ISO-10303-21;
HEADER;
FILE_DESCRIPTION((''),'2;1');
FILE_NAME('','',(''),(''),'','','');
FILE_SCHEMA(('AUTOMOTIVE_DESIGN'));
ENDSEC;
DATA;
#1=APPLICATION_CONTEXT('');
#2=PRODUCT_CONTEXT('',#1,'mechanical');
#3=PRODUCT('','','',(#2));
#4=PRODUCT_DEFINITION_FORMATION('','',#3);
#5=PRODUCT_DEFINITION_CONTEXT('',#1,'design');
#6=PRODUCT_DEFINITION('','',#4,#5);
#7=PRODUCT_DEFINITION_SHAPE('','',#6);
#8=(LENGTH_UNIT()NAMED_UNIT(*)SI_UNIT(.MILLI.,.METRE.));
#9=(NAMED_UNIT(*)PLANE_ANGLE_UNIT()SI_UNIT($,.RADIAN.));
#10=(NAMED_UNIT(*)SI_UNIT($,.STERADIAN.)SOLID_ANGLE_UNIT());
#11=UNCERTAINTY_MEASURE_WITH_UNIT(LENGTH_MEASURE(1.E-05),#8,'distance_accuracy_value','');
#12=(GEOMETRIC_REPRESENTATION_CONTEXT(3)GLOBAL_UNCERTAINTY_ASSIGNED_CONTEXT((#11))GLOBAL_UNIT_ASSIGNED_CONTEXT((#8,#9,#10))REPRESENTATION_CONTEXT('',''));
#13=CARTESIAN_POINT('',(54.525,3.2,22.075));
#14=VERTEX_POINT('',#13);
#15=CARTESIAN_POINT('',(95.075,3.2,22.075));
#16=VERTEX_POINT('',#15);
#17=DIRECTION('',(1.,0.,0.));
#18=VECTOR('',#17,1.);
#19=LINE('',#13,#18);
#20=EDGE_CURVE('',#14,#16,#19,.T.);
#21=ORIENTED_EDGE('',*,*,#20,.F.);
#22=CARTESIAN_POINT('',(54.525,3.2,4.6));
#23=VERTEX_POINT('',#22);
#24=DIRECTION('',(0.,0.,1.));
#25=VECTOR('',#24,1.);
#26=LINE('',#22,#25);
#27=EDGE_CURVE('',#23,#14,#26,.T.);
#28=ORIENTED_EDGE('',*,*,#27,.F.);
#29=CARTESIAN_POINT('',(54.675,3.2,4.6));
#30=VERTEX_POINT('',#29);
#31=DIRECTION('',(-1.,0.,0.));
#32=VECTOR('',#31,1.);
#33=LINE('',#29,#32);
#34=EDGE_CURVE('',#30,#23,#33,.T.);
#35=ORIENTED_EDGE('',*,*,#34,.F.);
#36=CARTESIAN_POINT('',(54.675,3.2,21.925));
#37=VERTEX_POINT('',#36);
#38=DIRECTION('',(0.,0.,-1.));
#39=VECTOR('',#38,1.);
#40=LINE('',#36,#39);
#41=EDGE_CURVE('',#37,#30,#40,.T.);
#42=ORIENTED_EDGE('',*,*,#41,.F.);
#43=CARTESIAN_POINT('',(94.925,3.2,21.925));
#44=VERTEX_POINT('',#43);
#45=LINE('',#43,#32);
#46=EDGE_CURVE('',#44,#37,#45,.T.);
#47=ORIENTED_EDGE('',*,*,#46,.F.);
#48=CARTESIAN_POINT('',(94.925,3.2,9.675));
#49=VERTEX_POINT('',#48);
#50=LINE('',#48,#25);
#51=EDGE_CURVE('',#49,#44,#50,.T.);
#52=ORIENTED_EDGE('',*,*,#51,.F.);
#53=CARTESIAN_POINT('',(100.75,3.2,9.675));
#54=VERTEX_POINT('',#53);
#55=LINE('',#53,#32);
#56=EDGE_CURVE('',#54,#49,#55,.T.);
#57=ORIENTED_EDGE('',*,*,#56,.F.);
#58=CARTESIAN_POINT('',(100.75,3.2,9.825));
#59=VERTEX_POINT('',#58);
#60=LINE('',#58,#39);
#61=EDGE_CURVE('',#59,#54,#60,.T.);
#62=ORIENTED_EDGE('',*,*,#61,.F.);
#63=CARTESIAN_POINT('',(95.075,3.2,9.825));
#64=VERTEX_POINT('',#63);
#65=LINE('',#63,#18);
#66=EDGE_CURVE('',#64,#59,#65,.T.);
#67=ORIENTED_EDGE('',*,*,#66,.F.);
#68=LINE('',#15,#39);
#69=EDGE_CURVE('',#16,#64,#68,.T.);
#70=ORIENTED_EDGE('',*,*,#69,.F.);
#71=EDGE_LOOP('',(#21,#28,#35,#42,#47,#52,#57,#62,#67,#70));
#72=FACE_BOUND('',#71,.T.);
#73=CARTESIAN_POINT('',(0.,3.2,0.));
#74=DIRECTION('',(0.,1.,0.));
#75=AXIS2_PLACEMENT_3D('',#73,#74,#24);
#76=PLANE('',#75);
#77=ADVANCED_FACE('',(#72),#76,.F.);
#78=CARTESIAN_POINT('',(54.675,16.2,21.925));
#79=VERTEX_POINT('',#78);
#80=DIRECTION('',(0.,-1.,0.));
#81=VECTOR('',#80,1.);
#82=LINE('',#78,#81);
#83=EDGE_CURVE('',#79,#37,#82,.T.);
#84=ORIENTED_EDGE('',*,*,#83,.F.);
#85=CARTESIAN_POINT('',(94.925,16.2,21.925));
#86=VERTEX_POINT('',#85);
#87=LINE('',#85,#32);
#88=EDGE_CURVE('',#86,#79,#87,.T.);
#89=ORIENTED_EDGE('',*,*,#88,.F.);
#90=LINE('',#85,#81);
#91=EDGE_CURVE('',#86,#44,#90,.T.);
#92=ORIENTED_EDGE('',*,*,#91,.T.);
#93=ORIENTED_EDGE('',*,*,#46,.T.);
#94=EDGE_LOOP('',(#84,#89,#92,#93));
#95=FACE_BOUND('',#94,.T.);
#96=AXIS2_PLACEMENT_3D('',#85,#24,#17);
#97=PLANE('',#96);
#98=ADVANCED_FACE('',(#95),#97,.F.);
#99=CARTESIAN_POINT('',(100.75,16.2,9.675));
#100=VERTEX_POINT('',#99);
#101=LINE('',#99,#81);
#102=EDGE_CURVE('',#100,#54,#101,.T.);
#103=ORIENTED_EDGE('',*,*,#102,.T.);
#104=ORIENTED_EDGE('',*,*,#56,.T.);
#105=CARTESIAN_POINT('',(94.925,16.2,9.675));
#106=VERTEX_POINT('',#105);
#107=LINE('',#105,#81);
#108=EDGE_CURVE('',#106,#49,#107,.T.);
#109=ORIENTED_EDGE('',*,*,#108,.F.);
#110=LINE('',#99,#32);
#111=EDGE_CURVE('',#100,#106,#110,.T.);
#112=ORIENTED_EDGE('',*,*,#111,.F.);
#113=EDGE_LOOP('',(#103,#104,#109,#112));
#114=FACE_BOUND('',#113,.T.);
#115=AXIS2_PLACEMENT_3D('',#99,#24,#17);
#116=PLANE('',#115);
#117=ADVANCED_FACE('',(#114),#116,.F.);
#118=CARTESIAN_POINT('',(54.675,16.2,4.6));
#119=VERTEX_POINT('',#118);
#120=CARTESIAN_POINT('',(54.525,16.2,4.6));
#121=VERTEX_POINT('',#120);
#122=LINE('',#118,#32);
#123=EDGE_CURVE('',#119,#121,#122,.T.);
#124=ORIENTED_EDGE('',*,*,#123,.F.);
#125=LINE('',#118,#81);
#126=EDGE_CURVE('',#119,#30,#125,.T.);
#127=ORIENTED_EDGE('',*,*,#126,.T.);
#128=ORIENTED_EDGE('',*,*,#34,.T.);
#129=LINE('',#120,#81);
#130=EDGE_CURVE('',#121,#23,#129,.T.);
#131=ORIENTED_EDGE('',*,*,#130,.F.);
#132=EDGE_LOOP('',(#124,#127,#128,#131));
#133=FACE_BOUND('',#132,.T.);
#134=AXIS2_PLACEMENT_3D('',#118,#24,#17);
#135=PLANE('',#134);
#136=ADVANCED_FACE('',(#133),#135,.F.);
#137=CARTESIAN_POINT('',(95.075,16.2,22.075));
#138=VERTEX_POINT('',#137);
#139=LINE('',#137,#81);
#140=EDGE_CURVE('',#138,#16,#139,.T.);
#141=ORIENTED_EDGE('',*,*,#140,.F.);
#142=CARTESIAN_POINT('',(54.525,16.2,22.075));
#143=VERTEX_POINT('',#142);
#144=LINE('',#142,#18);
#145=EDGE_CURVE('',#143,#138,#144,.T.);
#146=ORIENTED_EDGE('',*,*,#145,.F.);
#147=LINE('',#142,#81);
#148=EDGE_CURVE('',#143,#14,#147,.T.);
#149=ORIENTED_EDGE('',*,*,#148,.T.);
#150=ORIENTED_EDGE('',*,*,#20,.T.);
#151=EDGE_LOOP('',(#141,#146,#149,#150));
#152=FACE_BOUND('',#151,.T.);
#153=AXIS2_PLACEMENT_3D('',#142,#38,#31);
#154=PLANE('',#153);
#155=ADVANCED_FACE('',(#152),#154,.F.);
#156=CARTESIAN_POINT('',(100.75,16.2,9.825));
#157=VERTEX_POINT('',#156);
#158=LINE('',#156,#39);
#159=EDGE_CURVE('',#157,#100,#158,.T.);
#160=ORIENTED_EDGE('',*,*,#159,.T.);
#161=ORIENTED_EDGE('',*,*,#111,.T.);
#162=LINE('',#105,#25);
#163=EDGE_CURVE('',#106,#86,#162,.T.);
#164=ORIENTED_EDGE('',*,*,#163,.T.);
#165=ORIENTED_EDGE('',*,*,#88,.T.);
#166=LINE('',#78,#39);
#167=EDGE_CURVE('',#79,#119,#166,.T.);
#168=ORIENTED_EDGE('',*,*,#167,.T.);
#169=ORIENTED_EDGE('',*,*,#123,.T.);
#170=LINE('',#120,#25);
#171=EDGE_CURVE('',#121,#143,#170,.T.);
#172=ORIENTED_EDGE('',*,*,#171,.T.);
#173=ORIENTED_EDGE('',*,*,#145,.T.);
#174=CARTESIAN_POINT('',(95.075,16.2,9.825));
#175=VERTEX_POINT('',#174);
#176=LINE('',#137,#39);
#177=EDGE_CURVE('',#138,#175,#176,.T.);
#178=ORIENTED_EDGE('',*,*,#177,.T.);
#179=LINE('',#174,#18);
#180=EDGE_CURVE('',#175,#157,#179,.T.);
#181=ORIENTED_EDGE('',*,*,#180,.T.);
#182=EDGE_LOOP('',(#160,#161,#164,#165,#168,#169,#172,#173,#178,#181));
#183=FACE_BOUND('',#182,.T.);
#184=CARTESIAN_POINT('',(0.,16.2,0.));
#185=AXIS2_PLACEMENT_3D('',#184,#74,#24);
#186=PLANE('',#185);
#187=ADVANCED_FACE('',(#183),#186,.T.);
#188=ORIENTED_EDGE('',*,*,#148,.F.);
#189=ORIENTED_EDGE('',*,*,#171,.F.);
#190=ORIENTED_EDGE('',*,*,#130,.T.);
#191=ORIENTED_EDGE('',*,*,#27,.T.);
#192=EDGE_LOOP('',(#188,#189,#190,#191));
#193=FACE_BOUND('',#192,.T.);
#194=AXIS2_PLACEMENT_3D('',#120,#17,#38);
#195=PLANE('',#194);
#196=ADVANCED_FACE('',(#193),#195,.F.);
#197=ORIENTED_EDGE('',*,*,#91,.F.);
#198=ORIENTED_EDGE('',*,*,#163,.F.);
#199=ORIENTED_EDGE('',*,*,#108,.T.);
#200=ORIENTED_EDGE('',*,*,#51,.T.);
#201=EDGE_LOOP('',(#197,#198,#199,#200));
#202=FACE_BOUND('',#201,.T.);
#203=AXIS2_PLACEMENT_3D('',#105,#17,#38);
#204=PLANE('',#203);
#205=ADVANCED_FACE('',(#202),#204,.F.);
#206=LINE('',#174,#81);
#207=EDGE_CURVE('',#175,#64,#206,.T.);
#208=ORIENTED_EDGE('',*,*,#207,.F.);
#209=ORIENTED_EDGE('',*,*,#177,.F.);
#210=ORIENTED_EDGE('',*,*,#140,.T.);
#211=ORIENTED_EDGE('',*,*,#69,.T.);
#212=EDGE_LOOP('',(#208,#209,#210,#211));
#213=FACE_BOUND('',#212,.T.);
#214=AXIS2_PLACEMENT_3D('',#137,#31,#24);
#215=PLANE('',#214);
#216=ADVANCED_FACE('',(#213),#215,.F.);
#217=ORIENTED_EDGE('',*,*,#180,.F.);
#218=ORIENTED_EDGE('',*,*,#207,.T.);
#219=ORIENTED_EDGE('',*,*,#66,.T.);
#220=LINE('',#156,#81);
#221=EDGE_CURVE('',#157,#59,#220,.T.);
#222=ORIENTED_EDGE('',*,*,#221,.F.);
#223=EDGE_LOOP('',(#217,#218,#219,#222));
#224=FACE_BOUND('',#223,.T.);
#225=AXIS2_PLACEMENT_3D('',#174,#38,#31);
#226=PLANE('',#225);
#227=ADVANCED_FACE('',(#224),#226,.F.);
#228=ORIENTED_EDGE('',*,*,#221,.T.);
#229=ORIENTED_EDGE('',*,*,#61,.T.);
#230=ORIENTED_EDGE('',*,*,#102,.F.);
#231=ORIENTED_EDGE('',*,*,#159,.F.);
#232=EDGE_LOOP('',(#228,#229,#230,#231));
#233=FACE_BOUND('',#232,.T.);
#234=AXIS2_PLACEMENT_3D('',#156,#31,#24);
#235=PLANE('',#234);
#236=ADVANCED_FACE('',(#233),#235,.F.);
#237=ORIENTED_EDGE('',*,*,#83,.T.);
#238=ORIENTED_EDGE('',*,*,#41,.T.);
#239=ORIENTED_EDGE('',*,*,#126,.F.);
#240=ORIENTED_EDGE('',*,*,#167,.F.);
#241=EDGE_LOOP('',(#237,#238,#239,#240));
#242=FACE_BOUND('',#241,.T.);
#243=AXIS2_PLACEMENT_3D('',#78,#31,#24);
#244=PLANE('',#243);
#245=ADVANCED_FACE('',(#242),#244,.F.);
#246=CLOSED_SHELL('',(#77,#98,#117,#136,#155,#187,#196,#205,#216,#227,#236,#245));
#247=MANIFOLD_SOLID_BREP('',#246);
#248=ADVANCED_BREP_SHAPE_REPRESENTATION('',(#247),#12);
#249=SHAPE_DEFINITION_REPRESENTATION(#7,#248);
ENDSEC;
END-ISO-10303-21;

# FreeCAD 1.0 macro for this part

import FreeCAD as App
import Part
import Sketcher
Q = App.Units.Quantity

doc = App.newDocument("Part")
body = doc.addObject("PartDesign::Body", "Body")

# Sketch on XZ plane
sketch1 = body.newObject("Sketcher::SketchObject", "Sketch")
sketch1.AttachmentSupport = (doc.getObject("XZ_Plane"), [""])
sketch1.MapMode = "FlatFace"
sketch1.AttachmentOffset = App.Placement(App.Vector(0, 0, -3.2), App.Rotation())
sketch1.addGeometry(Part.LineSegment(App.Vector(54.52, 4.6, 0), App.Vector(54.52, 22.07, 0)), False)
sketch1.addGeometry(Part.LineSegment(App.Vector(54.52, 22.07, 0), App.Vector(95.08, 22.07, 0)), False)
sketch1.addGeometry(Part.LineSegment(App.Vector(95.08, 22.07, 0), App.Vector(95.08, 9.82, 0)), False)
sketch1.addGeometry(Part.LineSegment(App.Vector(95.08, 9.82, 0), App.Vector(100.75, 9.82, 0)), False)
sketch1.addGeometry(Part.LineSegment(App.Vector(100.75, 9.82, 0), App.Vector(100.75, 9.68, 0)), False)
sketch1.addGeometry(Part.LineSegment(App.Vector(100.75, 9.68, 0), App.Vector(94.92, 9.68, 0)), False)
sketch1.addGeometry(Part.LineSegment(App.Vector(94.92, 9.68, 0), App.Vector(94.92, 21.93, 0)), False)
sketch1.addGeometry(Part.LineSegment(App.Vector(94.92, 21.93, 0), App.Vector(54.67, 21.93, 0)), False)
sketch1.addGeometry(Part.LineSegment(App.Vector(54.67, 21.93, 0), App.Vector(54.67, 4.6, 0)), False)
sketch1.addGeometry(Part.LineSegment(App.Vector(54.67, 4.6, 0), App.Vector(54.52, 4.6, 0)), False)
sketch1.addConstraint(Sketcher.Constraint("Coincident", 0, 2, 1, 1))
sketch1.addConstraint(Sketcher.Constraint("Coincident", 1, 2, 2, 1))
sketch1.addConstraint(Sketcher.Constraint("Coincident", 2, 2, 3, 1))
sketch1.addConstraint(Sketcher.Constraint("Coincident", 3, 2, 4, 1))
sketch1.addConstraint(Sketcher.Constraint("Coincident", 4, 2, 5, 1))
sketch1.addConstraint(Sketcher.Constraint("Coincident", 5, 2, 6, 1))
sketch1.addConstraint(Sketcher.Constraint("Coincident", 6, 2, 7, 1))
sketch1.addConstraint(Sketcher.Constraint("Coincident", 7, 2, 8, 1))
sketch1.addConstraint(Sketcher.Constraint("Coincident", 8, 2, 9, 1))
sketch1.addConstraint(Sketcher.Constraint("Coincident", 9, 2, 0, 1))
sketch1.addConstraint(Sketcher.Constraint("Vertical", 0))
sketch1.addConstraint(Sketcher.Constraint("Horizontal", 1))
sketch1.addConstraint(Sketcher.Constraint("Vertical", 2))
sketch1.addConstraint(Sketcher.Constraint("Horizontal", 3))
sketch1.addConstraint(Sketcher.Constraint("Vertical", 4))
sketch1.addConstraint(Sketcher.Constraint("Horizontal", 5))
sketch1.addConstraint(Sketcher.Constraint("Vertical", 6))
sketch1.addConstraint(Sketcher.Constraint("Horizontal", 7))
sketch1.addConstraint(Sketcher.Constraint("Vertical", 8))
sketch1.addConstraint(Sketcher.Constraint("Horizontal", 9))
sketch1.addConstraint(Sketcher.Constraint("Equal", 9, 4))
sketch1.addConstraint(Sketcher.Constraint("Equal", 2, 6))
sketch1.addConstraint(Sketcher.Constraint("DistanceX", 1, 1, 1, 2, Q("40.55 mm")))
sketch1.addConstraint(Sketcher.Constraint("DistanceX", 7, 2, 7, 1, Q("40.25 mm")))
sketch1.addConstraint(Sketcher.Constraint("DistanceX", 9, 2, 9, 1, Q("0.15 mm")))
sketch1.addConstraint(Sketcher.Constraint("DistanceY", 2, 2, 2, 1, Q("12.25 mm")))
sketch1.addConstraint(Sketcher.Constraint("DistanceY", -1, 1, 8, 2, Q("4.6 mm")))
sketch1.addConstraint(Sketcher.Constraint("DistanceX", 3, 1, 3, 2, Q("5.675 mm")))
sketch1.addConstraint(Sketcher.Constraint("DistanceY", 0, 1, 0, 2, Q("17.475 mm")))
sketch1.addConstraint(Sketcher.Constraint("DistanceX", -1, 1, 3, 2, Q("100.75 mm")))
pad1 = body.newObject("PartDesign::Pad", "Pad")
pad1.Profile = sketch1
pad1.Length = 13
pad1.Reversed = True

doc.recompute()
